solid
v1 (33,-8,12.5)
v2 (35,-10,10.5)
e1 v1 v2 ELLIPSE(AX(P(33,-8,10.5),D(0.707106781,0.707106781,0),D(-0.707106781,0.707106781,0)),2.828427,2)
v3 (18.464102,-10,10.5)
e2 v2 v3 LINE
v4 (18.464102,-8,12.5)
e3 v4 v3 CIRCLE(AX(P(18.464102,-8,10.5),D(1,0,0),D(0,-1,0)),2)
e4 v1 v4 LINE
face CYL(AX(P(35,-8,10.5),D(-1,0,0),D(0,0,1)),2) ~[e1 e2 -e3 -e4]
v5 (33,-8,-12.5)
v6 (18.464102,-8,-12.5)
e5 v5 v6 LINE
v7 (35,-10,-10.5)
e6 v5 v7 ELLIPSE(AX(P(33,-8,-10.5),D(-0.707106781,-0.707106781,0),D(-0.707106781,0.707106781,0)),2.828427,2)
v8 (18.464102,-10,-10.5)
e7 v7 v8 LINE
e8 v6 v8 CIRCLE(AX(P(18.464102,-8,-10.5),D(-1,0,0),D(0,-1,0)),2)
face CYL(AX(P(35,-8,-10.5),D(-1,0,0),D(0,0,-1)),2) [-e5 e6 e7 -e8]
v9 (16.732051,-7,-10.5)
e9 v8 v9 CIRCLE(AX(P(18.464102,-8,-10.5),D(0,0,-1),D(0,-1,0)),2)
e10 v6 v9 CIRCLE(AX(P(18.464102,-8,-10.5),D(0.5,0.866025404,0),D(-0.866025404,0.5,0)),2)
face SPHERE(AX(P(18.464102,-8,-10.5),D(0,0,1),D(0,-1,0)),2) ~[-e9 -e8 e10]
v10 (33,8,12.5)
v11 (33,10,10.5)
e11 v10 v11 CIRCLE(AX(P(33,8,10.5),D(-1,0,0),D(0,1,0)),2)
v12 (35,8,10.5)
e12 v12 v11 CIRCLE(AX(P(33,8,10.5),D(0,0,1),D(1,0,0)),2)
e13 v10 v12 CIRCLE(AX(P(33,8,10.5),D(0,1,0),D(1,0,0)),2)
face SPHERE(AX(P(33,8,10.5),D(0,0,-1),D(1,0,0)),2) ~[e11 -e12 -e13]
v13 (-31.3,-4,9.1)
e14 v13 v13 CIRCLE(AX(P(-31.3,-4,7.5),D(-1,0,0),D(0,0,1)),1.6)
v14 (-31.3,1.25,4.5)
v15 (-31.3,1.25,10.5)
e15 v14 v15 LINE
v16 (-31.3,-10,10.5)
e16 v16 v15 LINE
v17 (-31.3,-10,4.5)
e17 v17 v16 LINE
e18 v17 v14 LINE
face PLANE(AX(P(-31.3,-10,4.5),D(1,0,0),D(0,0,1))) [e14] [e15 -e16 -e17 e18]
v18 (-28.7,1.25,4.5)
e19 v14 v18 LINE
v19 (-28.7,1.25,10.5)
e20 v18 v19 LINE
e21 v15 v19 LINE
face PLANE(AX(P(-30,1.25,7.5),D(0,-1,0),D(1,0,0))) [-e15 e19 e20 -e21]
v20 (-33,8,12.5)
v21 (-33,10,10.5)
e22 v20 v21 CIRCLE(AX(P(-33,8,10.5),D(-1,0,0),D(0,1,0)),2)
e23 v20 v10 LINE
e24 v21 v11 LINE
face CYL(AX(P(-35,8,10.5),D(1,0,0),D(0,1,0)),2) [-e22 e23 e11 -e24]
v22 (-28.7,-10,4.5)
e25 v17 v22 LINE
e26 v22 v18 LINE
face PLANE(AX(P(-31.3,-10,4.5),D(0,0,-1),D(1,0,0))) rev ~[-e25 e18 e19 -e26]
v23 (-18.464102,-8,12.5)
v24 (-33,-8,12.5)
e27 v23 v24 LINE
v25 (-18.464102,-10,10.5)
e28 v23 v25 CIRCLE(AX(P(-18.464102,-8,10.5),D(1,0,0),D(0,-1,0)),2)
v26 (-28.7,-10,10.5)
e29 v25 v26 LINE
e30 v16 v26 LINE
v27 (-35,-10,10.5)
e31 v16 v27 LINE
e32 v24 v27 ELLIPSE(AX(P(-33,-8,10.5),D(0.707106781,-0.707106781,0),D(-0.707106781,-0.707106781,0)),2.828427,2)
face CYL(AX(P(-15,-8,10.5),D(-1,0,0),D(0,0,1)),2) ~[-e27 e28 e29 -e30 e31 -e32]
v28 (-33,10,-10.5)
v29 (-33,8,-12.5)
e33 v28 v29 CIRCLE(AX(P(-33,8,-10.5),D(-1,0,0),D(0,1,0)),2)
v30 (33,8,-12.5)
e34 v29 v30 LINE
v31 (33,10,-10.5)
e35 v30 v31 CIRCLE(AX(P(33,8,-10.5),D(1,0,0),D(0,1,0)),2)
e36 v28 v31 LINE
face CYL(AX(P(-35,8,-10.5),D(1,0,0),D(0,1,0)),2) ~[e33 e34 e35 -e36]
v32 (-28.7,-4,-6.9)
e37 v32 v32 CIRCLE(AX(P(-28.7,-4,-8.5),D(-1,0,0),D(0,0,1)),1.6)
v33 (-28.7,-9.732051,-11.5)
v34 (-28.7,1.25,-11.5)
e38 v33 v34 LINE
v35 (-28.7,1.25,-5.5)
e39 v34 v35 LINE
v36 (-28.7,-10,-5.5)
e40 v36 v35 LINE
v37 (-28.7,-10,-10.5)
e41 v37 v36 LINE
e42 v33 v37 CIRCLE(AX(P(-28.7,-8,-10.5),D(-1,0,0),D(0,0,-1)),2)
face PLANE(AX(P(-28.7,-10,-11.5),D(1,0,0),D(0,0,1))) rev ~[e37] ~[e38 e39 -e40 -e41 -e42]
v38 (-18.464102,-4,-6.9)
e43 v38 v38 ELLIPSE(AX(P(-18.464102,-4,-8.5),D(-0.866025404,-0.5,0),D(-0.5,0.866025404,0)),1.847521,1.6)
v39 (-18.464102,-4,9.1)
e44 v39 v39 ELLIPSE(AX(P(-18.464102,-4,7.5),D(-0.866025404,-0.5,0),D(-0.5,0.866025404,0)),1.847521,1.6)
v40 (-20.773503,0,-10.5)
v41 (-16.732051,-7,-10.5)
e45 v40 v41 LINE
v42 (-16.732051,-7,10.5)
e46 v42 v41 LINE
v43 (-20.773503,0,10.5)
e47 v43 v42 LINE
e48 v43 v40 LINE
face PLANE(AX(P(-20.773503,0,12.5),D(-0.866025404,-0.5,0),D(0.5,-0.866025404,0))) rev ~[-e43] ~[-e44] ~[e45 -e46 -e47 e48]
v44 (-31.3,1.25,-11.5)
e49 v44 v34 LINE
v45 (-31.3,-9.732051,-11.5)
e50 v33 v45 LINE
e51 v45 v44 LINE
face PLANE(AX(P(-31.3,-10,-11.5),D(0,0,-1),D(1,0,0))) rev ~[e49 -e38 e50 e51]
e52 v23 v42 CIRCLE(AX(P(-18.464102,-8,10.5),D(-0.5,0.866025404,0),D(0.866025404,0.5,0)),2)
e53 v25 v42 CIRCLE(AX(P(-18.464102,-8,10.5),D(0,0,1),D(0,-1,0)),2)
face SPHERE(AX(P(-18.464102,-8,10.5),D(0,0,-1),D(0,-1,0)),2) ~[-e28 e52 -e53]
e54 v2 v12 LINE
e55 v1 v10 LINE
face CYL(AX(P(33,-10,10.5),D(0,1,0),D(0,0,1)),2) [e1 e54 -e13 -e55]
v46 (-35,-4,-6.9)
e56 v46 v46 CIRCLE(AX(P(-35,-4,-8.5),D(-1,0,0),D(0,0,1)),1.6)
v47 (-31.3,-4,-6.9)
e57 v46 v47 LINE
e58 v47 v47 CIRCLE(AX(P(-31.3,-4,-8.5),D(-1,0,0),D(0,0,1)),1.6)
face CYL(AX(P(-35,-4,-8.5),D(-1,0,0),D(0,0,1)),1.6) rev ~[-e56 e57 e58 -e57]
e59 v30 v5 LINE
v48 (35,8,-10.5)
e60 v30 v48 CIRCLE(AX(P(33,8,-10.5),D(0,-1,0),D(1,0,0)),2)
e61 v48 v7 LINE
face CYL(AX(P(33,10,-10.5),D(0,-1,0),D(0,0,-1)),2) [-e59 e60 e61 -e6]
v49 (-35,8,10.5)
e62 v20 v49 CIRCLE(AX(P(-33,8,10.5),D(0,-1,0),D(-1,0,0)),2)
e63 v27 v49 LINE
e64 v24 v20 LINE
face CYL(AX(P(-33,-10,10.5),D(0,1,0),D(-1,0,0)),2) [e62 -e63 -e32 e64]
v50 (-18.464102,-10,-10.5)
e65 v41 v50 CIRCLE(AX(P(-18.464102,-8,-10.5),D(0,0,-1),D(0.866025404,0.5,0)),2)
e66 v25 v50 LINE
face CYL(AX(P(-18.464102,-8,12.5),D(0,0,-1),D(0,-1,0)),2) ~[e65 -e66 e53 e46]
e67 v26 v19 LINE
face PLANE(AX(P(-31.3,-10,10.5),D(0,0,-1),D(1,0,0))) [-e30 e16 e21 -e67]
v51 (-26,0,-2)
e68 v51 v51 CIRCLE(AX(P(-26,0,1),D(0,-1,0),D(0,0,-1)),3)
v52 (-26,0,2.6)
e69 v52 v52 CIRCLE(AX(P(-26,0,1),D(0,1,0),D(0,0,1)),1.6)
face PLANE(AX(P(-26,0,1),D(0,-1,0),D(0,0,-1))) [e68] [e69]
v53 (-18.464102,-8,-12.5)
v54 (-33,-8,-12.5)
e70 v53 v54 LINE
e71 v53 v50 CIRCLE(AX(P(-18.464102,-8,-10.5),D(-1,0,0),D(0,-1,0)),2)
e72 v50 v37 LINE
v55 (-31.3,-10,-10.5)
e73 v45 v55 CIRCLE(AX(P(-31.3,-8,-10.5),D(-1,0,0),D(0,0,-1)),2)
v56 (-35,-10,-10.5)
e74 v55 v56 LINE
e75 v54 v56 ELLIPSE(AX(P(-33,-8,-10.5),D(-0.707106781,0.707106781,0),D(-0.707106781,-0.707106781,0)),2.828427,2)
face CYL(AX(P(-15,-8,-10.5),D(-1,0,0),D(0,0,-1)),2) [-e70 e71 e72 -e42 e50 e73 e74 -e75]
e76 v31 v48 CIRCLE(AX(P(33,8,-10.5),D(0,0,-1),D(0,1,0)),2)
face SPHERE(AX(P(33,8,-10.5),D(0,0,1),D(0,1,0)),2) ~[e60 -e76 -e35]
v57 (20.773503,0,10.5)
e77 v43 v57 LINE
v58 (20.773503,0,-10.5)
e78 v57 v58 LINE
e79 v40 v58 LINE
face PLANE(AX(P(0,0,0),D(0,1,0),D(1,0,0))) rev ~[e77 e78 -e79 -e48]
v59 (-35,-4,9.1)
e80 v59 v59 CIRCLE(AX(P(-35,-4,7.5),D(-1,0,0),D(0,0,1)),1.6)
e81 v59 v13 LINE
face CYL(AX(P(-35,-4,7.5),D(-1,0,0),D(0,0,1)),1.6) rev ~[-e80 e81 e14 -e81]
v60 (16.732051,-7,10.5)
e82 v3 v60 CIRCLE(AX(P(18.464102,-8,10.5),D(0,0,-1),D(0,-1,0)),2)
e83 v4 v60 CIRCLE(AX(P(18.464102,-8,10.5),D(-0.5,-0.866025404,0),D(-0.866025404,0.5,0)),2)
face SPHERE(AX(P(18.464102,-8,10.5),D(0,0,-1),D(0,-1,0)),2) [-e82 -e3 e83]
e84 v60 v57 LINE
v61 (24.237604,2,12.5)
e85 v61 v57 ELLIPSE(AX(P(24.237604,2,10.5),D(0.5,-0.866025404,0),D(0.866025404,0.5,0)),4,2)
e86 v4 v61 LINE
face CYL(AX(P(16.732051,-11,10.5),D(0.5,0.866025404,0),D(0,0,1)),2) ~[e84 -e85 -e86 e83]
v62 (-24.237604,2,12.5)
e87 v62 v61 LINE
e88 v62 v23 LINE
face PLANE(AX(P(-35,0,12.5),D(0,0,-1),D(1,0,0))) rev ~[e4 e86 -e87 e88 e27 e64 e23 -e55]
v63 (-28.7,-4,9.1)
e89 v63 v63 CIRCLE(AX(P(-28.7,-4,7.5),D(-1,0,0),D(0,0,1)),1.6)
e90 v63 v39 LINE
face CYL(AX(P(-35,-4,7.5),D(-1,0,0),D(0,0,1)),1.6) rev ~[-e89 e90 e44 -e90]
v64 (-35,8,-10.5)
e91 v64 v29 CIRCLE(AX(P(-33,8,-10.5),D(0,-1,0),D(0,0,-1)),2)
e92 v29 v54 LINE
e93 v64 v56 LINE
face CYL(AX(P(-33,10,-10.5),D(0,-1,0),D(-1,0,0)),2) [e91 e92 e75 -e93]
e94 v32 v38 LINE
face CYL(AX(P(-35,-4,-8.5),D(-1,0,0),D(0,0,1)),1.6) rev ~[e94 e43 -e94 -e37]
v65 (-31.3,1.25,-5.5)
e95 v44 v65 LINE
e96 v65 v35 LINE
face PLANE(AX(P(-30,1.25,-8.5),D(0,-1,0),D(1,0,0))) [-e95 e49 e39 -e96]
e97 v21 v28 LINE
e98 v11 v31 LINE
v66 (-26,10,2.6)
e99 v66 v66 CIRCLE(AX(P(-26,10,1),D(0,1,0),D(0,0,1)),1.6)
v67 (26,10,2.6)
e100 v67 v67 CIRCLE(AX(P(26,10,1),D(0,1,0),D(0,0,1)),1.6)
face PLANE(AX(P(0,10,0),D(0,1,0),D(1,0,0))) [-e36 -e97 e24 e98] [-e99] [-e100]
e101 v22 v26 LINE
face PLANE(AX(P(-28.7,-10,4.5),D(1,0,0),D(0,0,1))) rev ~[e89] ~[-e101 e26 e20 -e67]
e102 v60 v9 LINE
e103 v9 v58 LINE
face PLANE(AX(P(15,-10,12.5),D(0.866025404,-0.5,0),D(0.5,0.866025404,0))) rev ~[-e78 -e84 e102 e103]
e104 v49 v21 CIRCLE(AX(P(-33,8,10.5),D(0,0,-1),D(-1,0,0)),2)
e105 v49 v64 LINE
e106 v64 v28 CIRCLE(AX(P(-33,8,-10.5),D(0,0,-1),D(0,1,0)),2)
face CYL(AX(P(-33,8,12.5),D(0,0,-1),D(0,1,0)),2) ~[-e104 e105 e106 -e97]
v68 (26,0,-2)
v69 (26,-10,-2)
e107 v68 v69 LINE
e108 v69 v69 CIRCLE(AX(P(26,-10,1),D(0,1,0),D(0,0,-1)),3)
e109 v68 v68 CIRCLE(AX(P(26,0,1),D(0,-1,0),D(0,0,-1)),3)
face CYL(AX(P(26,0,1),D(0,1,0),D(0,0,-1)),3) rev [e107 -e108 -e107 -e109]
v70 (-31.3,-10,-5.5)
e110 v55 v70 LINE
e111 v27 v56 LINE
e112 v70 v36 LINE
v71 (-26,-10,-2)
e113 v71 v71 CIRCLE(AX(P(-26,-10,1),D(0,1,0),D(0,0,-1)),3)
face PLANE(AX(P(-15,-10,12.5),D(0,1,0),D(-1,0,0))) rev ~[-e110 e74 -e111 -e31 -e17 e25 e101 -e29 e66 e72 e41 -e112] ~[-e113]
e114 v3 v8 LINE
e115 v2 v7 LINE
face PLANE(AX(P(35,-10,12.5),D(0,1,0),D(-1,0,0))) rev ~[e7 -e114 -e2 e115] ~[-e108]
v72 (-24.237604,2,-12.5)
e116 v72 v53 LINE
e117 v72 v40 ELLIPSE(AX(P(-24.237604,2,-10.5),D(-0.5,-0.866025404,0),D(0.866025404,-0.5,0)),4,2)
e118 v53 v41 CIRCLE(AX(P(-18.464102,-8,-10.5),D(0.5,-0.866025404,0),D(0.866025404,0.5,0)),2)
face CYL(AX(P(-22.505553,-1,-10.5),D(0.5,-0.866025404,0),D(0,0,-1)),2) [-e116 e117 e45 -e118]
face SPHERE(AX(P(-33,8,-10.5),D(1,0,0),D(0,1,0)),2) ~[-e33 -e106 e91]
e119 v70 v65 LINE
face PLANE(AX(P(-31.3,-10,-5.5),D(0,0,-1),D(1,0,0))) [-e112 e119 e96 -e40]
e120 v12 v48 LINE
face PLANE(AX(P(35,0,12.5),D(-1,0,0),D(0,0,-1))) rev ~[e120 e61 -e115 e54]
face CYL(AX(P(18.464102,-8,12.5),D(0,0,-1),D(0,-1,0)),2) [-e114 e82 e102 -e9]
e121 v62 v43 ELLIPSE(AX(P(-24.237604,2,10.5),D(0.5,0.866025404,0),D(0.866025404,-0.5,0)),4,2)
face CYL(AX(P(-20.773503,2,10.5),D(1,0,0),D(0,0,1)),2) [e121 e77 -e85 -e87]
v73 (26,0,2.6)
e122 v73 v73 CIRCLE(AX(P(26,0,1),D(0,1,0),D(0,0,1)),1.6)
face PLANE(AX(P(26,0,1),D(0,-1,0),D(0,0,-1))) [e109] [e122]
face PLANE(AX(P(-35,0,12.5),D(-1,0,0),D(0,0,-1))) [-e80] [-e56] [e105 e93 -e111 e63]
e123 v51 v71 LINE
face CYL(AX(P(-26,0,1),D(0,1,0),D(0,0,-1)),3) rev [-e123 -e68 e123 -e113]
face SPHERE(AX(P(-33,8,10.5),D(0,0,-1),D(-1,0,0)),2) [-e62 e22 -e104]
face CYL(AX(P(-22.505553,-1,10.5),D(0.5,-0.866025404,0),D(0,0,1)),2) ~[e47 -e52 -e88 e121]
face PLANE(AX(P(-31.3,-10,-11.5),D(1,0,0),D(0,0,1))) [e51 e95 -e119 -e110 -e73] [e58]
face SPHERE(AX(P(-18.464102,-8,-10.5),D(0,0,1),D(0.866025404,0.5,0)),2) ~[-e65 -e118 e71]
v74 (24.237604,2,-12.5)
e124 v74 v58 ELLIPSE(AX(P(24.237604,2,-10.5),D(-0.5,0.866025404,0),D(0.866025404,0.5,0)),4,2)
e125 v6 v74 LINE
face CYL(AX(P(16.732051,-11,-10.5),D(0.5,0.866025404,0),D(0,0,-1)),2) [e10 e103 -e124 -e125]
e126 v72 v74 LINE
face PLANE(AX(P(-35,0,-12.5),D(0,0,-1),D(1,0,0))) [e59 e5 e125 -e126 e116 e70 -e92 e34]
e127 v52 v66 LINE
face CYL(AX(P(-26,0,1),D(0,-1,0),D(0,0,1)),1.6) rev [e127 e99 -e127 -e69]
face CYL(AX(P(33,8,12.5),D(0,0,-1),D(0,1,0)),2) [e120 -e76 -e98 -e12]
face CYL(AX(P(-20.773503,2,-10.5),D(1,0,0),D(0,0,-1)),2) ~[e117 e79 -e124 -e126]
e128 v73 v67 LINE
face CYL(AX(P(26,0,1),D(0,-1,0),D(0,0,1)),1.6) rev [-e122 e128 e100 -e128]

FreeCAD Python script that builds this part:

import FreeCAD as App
import Part
import Sketcher
from FreeCAD import Vector
Q = App.Units.Quantity


def edges_at(feature, points):
    """Names of the edges that pass closest to the given points."""
    edges = feature.Shape.Edges
    near = lambda p: min(range(len(edges)), key=lambda i: edges[i].distToShape(Part.Vertex(*p))[0])
    return sorted({f"Edge{near(p) + 1}" for p in points})

doc = App.newDocument("Part")
params = doc.addObject("Spreadsheet::Sheet", "Params")
for row, (alias, value) in enumerate([
    ("sketch1_diameter", "3.2 mm"),
    ("sketch1_width", "70 mm"),
    ("sketch1_height", "25 mm"),
    ("pad1_length", "10 mm"),
    ("sketch2_width", "20 mm"),
    ("sketch2_height", "10 mm"),
    ("pad2_length", "25 mm"),
    ("sketch3_diameter", "6 mm"),
    ("fillet_radius", "2 mm"),
    ("sketch4_diameter", "3.2 mm"),
    ("pocket2_length", "27 mm"),
    ("sketch5_height", "6 mm"),
    ("sketch5_width", "2.6 mm"),
    ("pocket3_length", "11.25 mm"),
], start=1):
    params.set(f"A{row}", alias)
    params.set(f"B{row}", "=" + value)
    params.setAlias(f"B{row}", alias)

body = doc.addObject("PartDesign::Body", "Body")

# Sketch on XZ plane
sketch1 = body.newObject("Sketcher::SketchObject", "Sketch")
sketch1.AttachmentSupport = (doc.getObject("XZ_Plane"), [""])
sketch1.MapMode = "FlatFace"
sketch1.addGeometry(Part.LineSegment(Vector(-35, -12.5, 0), Vector(-35, 12.5, 0)), False)
sketch1.addGeometry(Part.LineSegment(Vector(-35, 12.5, 0), Vector(35, 12.5, 0)), False)
sketch1.addGeometry(Part.LineSegment(Vector(35, 12.5, 0), Vector(35, -12.5, 0)), False)
sketch1.addGeometry(Part.LineSegment(Vector(35, -12.5, 0), Vector(-35, -12.5, 0)), False)
sketch1.addGeometry(Part.Circle(Vector(-26, 1, 0), Vector(0, 0, 1), 1.6), False)
sketch1.addGeometry(Part.Circle(Vector(26, 1, 0), Vector(0, 0, 1), 1.6), False)
sketch1.addConstraint(Sketcher.Constraint("Coincident", 0, 2, 1, 1))
sketch1.addConstraint(Sketcher.Constraint("Coincident", 1, 2, 2, 1))
sketch1.addConstraint(Sketcher.Constraint("Coincident", 2, 2, 3, 1))
sketch1.addConstraint(Sketcher.Constraint("Coincident", 3, 2, 0, 1))
sketch1.addConstraint(Sketcher.Constraint("Vertical", 0))
sketch1.addConstraint(Sketcher.Constraint("Horizontal", 1))
sketch1.addConstraint(Sketcher.Constraint("Vertical", 2))
sketch1.addConstraint(Sketcher.Constraint("Horizontal", 3))
sketch1.addConstraint(Sketcher.Constraint("Equal", 4, 5))
sketch1.addConstraint(Sketcher.Constraint("Symmetric", 0, 2, 2, 2, -1, 1))
sketch1.addConstraint(Sketcher.Constraint("Symmetric", 4, 3, 5, 3, -2))
sketch1.addConstraint(Sketcher.Constraint("Diameter", 4, 3.2))
sketch1.addConstraint(Sketcher.Constraint("DistanceX", 1, 1, 1, 2, 70.0))
sketch1.addConstraint(Sketcher.Constraint("DistanceY", 0, 1, 0, 2, 25.0))
sketch1.addConstraint(Sketcher.Constraint("DistanceX", 4, 3, -1, 1, 26.0))
sketch1.addConstraint(Sketcher.Constraint("DistanceY", -1, 1, 4, 3, 1.0))
sketch1.setExpression("Constraints[11]", "Params.sketch1_diameter")
sketch1.setExpression("Constraints[12]", "Params.sketch1_width")
sketch1.setExpression("Constraints[13]", "Params.sketch1_height")
pad1 = body.newObject("PartDesign::Pad", "Pad")
pad1.Profile = sketch1
pad1.setExpression("Length", "Params.pad1_length")
pad1.Reversed = True

# Sketch on XY plane
sketch2 = body.newObject("Sketcher::SketchObject", "Sketch001")
sketch2.AttachmentSupport = (doc.getObject("XY_Plane"), [""])
sketch2.MapMode = "FlatFace"
sketch2.AttachmentOffset = App.Placement(Vector(0, 0, 12.5), App.Rotation())
sketch2.addGeometry(Part.LineSegment(Vector(-21, 0, 0), Vector(-35, 0, 0)), False)
sketch2.addGeometry(Part.LineSegment(Vector(-35, 0, 0), Vector(-35, -10, 0)), False)
sketch2.addGeometry(Part.LineSegment(Vector(-35, -10, 0), Vector(-15, -10, 0)), False)
sketch2.addGeometry(Part.LineSegment(Vector(-15, -10, 0), Vector(-21, 0, 0)), False)
sketch2.addGeometry(Part.LineSegment(Vector(35, -10, 0), Vector(35, 0, 0)), False)
sketch2.addGeometry(Part.LineSegment(Vector(35, 0, 0), Vector(21, 0, 0)), False)
sketch2.addGeometry(Part.LineSegment(Vector(21, 0, 0), Vector(15, -10, 0)), False)
sketch2.addGeometry(Part.LineSegment(Vector(15, -10, 0), Vector(35, -10, 0)), False)
sketch2.addConstraint(Sketcher.Constraint("Coincident", 0, 2, 1, 1))
sketch2.addConstraint(Sketcher.Constraint("Coincident", 1, 2, 2, 1))
sketch2.addConstraint(Sketcher.Constraint("Coincident", 2, 2, 3, 1))
sketch2.addConstraint(Sketcher.Constraint("Coincident", 3, 2, 0, 1))
sketch2.addConstraint(Sketcher.Constraint("Coincident", 4, 2, 5, 1))
sketch2.addConstraint(Sketcher.Constraint("Coincident", 5, 2, 6, 1))
sketch2.addConstraint(Sketcher.Constraint("Coincident", 6, 2, 7, 1))
sketch2.addConstraint(Sketcher.Constraint("Coincident", 7, 2, 4, 1))
sketch2.addConstraint(Sketcher.Constraint("Horizontal", 0))
sketch2.addConstraint(Sketcher.Constraint("Vertical", 1))
sketch2.addConstraint(Sketcher.Constraint("Horizontal", 2))
sketch2.addConstraint(Sketcher.Constraint("Vertical", 4))
sketch2.addConstraint(Sketcher.Constraint("Horizontal", 5))
sketch2.addConstraint(Sketcher.Constraint("Horizontal", 7))
sketch2.addConstraint(Sketcher.Constraint("Symmetric", 0, 2, 4, 2, -1, 1))
sketch2.addConstraint(Sketcher.Constraint("Symmetric", 3, 2, 5, 2, -2))
sketch2.addConstraint(Sketcher.Constraint("Symmetric", 2, 2, 6, 2, -2))
sketch2.addConstraint(Sketcher.Constraint("DistanceX", 2, 1, 2, 2, 20.0))
sketch2.addConstraint(Sketcher.Constraint("DistanceY", 1, 2, 1, 1, 10.0))
sketch2.addConstraint(Sketcher.Constraint("Angle", 3, Q("120 deg")))
sketch2.addConstraint(Sketcher.Constraint("DistanceX", 0, 2, -1, 1, 35.0))
sketch2.setExpression("Constraints[17]", "Params.sketch2_width")
sketch2.setExpression("Constraints[18]", "Params.sketch2_height")
pad2 = body.newObject("PartDesign::Pad", "Pad001")
pad2.Profile = sketch2
pad2.setExpression("Length", "Params.pad2_length")
pad2.Reversed = True

# Sketch on XZ plane
sketch3 = body.newObject("Sketcher::SketchObject", "Sketch002")
sketch3.AttachmentSupport = (doc.getObject("XZ_Plane"), [""])
sketch3.MapMode = "FlatFace"
sketch3.addGeometry(Part.Circle(Vector(-26, 1, 0), Vector(0, 0, 1), 3), False)
sketch3.addGeometry(Part.Circle(Vector(26, 1, 0), Vector(0, 0, 1), 3), False)
sketch3.addConstraint(Sketcher.Constraint("Equal", 0, 1))
sketch3.addConstraint(Sketcher.Constraint("Symmetric", 0, 3, 1, 3, -2))
sketch3.addConstraint(Sketcher.Constraint("Diameter", 0, 6.0))
sketch3.addConstraint(Sketcher.Constraint("DistanceX", 0, 3, -1, 1, 26.0))
sketch3.addConstraint(Sketcher.Constraint("DistanceY", -1, 1, 0, 3, 1.0))
sketch3.setExpression("Constraints[2]", "Params.sketch3_diameter")
pocket1 = body.newObject("PartDesign::Pocket", "Pocket")
pocket1.Profile = sketch3
pocket1.Type = "ThroughAll"
pocket1.Reversed = True
doc.recompute()

fillet = body.newObject("PartDesign::Fillet", "Fillet")
fillet.Base = (pocket1, edges_at(pocket1, [
    (35, 10, 0),
    (0, 10, -12.5),
    (0, 0, -12.5),
    (0, 0, 12.5),
    (-17.887, -5, -12.5),
    (-25, -10, -12.5),
    (-15, -10, 0),
    (-25, -10, 12.5),
    (-17.887, -5, 12.5),
    (25, -10, -12.5),
    (17.887, -5, -12.5),
    (15, -10, 0),
    (25, -10, 12.5),
    (17.887, -5, 12.5),
    (-35, 10, 0),
    (-35, 0, -12.5),
    (35, 0, -12.5),
    (35, 0, 12.5),
    (-35, 0, 12.5),
    (0, 10, 12.5),
]))
fillet.setExpression("Radius", "Params.fillet_radius")

# Sketch on YZ plane
sketch4 = body.newObject("Sketcher::SketchObject", "Sketch003")
sketch4.AttachmentSupport = (doc.getObject("YZ_Plane"), [""])
sketch4.MapMode = "FlatFace"
sketch4.AttachmentOffset = App.Placement(Vector(0, 0, -35), App.Rotation())
sketch4.addGeometry(Part.Circle(Vector(-4, -8.5, 0), Vector(0, 0, 1), 1.6), False)
sketch4.addGeometry(Part.Circle(Vector(-4, 7.5, 0), Vector(0, 0, 1), 1.6), False)
sketch4.addConstraint(Sketcher.Constraint("Equal", 0, 1))
sketch4.addConstraint(Sketcher.Constraint("Vertical", 0, 3, 1, 3))
sketch4.addConstraint(Sketcher.Constraint("Diameter", 0, 3.2))
sketch4.addConstraint(Sketcher.Constraint("DistanceX", 0, 3, -1, 1, 4.0))
sketch4.addConstraint(Sketcher.Constraint("DistanceY", 0, 3, 1, 3, 16.0))
sketch4.addConstraint(Sketcher.Constraint("DistanceY", 0, 3, -1, 1, 8.5))
sketch4.setExpression("Constraints[2]", "Params.sketch4_diameter")
pocket2 = body.newObject("PartDesign::Pocket", "Pocket001")
pocket2.Profile = sketch4
pocket2.setExpression("Length", "Params.pocket2_length")
pocket2.Reversed = True

# Sketch on XZ plane
sketch5 = body.newObject("Sketcher::SketchObject", "Sketch004")
sketch5.AttachmentSupport = (doc.getObject("XZ_Plane"), [""])
sketch5.MapMode = "FlatFace"
sketch5.AttachmentOffset = App.Placement(Vector(0, 0, 10), App.Rotation())
sketch5.addGeometry(Part.LineSegment(Vector(-31.3, -5.5, 0), Vector(-31.3, -11.5, 0)), False)
sketch5.addGeometry(Part.LineSegment(Vector(-31.3, -11.5, 0), Vector(-28.7, -11.5, 0)), False)
sketch5.addGeometry(Part.LineSegment(Vector(-28.7, -11.5, 0), Vector(-28.7, -5.5, 0)), False)
sketch5.addGeometry(Part.LineSegment(Vector(-28.7, -5.5, 0), Vector(-31.3, -5.5, 0)), False)
sketch5.addGeometry(Part.LineSegment(Vector(-31.3, 10.5, 0), Vector(-31.3, 4.5, 0)), False)
sketch5.addGeometry(Part.LineSegment(Vector(-31.3, 4.5, 0), Vector(-28.7, 4.5, 0)), False)
sketch5.addGeometry(Part.LineSegment(Vector(-28.7, 4.5, 0), Vector(-28.7, 10.5, 0)), False)
sketch5.addGeometry(Part.LineSegment(Vector(-28.7, 10.5, 0), Vector(-31.3, 10.5, 0)), False)
sketch5.addConstraint(Sketcher.Constraint("Coincident", 0, 2, 1, 1))
sketch5.addConstraint(Sketcher.Constraint("Coincident", 1, 2, 2, 1))
sketch5.addConstraint(Sketcher.Constraint("Coincident", 2, 2, 3, 1))
sketch5.addConstraint(Sketcher.Constraint("Coincident", 3, 2, 0, 1))
sketch5.addConstraint(Sketcher.Constraint("Coincident", 4, 2, 5, 1))
sketch5.addConstraint(Sketcher.Constraint("Coincident", 5, 2, 6, 1))
sketch5.addConstraint(Sketcher.Constraint("Coincident", 6, 2, 7, 1))
sketch5.addConstraint(Sketcher.Constraint("Coincident", 7, 2, 4, 1))
sketch5.addConstraint(Sketcher.Constraint("Vertical", 0))
sketch5.addConstraint(Sketcher.Constraint("Horizontal", 1))
sketch5.addConstraint(Sketcher.Constraint("Vertical", 2))
sketch5.addConstraint(Sketcher.Constraint("Horizontal", 3))
sketch5.addConstraint(Sketcher.Constraint("Vertical", 4))
sketch5.addConstraint(Sketcher.Constraint("Horizontal", 5))
sketch5.addConstraint(Sketcher.Constraint("Vertical", 6))
sketch5.addConstraint(Sketcher.Constraint("Horizontal", 7))
sketch5.addConstraint(Sketcher.Constraint("Vertical", 3, 2, 4, 2))
sketch5.addConstraint(Sketcher.Constraint("Vertical", 2, 2, 5, 2))
sketch5.addConstraint(Sketcher.Constraint("Equal", 2, 4))
sketch5.addConstraint(Sketcher.Constraint("DistanceY", 0, 2, 0, 1, 6.0))
sketch5.addConstraint(Sketcher.Constraint("DistanceX", 1, 1, 1, 2, 2.6))
sketch5.addConstraint(Sketcher.Constraint("DistanceY", 3, 2, 4, 2, 10.0))
sketch5.addConstraint(Sketcher.Constraint("DistanceX", 0, 2, -1, 1, 31.3))
sketch5.addConstraint(Sketcher.Constraint("DistanceY", 0, 2, -1, 1, 11.5))
sketch5.setExpression("Constraints[19]", "Params.sketch5_height")
sketch5.setExpression("Constraints[20]", "Params.sketch5_width")
pocket3 = body.newObject("PartDesign::Pocket", "Pocket002")
pocket3.Profile = sketch5
pocket3.setExpression("Length", "Params.pocket3_length")

doc.recompute()
